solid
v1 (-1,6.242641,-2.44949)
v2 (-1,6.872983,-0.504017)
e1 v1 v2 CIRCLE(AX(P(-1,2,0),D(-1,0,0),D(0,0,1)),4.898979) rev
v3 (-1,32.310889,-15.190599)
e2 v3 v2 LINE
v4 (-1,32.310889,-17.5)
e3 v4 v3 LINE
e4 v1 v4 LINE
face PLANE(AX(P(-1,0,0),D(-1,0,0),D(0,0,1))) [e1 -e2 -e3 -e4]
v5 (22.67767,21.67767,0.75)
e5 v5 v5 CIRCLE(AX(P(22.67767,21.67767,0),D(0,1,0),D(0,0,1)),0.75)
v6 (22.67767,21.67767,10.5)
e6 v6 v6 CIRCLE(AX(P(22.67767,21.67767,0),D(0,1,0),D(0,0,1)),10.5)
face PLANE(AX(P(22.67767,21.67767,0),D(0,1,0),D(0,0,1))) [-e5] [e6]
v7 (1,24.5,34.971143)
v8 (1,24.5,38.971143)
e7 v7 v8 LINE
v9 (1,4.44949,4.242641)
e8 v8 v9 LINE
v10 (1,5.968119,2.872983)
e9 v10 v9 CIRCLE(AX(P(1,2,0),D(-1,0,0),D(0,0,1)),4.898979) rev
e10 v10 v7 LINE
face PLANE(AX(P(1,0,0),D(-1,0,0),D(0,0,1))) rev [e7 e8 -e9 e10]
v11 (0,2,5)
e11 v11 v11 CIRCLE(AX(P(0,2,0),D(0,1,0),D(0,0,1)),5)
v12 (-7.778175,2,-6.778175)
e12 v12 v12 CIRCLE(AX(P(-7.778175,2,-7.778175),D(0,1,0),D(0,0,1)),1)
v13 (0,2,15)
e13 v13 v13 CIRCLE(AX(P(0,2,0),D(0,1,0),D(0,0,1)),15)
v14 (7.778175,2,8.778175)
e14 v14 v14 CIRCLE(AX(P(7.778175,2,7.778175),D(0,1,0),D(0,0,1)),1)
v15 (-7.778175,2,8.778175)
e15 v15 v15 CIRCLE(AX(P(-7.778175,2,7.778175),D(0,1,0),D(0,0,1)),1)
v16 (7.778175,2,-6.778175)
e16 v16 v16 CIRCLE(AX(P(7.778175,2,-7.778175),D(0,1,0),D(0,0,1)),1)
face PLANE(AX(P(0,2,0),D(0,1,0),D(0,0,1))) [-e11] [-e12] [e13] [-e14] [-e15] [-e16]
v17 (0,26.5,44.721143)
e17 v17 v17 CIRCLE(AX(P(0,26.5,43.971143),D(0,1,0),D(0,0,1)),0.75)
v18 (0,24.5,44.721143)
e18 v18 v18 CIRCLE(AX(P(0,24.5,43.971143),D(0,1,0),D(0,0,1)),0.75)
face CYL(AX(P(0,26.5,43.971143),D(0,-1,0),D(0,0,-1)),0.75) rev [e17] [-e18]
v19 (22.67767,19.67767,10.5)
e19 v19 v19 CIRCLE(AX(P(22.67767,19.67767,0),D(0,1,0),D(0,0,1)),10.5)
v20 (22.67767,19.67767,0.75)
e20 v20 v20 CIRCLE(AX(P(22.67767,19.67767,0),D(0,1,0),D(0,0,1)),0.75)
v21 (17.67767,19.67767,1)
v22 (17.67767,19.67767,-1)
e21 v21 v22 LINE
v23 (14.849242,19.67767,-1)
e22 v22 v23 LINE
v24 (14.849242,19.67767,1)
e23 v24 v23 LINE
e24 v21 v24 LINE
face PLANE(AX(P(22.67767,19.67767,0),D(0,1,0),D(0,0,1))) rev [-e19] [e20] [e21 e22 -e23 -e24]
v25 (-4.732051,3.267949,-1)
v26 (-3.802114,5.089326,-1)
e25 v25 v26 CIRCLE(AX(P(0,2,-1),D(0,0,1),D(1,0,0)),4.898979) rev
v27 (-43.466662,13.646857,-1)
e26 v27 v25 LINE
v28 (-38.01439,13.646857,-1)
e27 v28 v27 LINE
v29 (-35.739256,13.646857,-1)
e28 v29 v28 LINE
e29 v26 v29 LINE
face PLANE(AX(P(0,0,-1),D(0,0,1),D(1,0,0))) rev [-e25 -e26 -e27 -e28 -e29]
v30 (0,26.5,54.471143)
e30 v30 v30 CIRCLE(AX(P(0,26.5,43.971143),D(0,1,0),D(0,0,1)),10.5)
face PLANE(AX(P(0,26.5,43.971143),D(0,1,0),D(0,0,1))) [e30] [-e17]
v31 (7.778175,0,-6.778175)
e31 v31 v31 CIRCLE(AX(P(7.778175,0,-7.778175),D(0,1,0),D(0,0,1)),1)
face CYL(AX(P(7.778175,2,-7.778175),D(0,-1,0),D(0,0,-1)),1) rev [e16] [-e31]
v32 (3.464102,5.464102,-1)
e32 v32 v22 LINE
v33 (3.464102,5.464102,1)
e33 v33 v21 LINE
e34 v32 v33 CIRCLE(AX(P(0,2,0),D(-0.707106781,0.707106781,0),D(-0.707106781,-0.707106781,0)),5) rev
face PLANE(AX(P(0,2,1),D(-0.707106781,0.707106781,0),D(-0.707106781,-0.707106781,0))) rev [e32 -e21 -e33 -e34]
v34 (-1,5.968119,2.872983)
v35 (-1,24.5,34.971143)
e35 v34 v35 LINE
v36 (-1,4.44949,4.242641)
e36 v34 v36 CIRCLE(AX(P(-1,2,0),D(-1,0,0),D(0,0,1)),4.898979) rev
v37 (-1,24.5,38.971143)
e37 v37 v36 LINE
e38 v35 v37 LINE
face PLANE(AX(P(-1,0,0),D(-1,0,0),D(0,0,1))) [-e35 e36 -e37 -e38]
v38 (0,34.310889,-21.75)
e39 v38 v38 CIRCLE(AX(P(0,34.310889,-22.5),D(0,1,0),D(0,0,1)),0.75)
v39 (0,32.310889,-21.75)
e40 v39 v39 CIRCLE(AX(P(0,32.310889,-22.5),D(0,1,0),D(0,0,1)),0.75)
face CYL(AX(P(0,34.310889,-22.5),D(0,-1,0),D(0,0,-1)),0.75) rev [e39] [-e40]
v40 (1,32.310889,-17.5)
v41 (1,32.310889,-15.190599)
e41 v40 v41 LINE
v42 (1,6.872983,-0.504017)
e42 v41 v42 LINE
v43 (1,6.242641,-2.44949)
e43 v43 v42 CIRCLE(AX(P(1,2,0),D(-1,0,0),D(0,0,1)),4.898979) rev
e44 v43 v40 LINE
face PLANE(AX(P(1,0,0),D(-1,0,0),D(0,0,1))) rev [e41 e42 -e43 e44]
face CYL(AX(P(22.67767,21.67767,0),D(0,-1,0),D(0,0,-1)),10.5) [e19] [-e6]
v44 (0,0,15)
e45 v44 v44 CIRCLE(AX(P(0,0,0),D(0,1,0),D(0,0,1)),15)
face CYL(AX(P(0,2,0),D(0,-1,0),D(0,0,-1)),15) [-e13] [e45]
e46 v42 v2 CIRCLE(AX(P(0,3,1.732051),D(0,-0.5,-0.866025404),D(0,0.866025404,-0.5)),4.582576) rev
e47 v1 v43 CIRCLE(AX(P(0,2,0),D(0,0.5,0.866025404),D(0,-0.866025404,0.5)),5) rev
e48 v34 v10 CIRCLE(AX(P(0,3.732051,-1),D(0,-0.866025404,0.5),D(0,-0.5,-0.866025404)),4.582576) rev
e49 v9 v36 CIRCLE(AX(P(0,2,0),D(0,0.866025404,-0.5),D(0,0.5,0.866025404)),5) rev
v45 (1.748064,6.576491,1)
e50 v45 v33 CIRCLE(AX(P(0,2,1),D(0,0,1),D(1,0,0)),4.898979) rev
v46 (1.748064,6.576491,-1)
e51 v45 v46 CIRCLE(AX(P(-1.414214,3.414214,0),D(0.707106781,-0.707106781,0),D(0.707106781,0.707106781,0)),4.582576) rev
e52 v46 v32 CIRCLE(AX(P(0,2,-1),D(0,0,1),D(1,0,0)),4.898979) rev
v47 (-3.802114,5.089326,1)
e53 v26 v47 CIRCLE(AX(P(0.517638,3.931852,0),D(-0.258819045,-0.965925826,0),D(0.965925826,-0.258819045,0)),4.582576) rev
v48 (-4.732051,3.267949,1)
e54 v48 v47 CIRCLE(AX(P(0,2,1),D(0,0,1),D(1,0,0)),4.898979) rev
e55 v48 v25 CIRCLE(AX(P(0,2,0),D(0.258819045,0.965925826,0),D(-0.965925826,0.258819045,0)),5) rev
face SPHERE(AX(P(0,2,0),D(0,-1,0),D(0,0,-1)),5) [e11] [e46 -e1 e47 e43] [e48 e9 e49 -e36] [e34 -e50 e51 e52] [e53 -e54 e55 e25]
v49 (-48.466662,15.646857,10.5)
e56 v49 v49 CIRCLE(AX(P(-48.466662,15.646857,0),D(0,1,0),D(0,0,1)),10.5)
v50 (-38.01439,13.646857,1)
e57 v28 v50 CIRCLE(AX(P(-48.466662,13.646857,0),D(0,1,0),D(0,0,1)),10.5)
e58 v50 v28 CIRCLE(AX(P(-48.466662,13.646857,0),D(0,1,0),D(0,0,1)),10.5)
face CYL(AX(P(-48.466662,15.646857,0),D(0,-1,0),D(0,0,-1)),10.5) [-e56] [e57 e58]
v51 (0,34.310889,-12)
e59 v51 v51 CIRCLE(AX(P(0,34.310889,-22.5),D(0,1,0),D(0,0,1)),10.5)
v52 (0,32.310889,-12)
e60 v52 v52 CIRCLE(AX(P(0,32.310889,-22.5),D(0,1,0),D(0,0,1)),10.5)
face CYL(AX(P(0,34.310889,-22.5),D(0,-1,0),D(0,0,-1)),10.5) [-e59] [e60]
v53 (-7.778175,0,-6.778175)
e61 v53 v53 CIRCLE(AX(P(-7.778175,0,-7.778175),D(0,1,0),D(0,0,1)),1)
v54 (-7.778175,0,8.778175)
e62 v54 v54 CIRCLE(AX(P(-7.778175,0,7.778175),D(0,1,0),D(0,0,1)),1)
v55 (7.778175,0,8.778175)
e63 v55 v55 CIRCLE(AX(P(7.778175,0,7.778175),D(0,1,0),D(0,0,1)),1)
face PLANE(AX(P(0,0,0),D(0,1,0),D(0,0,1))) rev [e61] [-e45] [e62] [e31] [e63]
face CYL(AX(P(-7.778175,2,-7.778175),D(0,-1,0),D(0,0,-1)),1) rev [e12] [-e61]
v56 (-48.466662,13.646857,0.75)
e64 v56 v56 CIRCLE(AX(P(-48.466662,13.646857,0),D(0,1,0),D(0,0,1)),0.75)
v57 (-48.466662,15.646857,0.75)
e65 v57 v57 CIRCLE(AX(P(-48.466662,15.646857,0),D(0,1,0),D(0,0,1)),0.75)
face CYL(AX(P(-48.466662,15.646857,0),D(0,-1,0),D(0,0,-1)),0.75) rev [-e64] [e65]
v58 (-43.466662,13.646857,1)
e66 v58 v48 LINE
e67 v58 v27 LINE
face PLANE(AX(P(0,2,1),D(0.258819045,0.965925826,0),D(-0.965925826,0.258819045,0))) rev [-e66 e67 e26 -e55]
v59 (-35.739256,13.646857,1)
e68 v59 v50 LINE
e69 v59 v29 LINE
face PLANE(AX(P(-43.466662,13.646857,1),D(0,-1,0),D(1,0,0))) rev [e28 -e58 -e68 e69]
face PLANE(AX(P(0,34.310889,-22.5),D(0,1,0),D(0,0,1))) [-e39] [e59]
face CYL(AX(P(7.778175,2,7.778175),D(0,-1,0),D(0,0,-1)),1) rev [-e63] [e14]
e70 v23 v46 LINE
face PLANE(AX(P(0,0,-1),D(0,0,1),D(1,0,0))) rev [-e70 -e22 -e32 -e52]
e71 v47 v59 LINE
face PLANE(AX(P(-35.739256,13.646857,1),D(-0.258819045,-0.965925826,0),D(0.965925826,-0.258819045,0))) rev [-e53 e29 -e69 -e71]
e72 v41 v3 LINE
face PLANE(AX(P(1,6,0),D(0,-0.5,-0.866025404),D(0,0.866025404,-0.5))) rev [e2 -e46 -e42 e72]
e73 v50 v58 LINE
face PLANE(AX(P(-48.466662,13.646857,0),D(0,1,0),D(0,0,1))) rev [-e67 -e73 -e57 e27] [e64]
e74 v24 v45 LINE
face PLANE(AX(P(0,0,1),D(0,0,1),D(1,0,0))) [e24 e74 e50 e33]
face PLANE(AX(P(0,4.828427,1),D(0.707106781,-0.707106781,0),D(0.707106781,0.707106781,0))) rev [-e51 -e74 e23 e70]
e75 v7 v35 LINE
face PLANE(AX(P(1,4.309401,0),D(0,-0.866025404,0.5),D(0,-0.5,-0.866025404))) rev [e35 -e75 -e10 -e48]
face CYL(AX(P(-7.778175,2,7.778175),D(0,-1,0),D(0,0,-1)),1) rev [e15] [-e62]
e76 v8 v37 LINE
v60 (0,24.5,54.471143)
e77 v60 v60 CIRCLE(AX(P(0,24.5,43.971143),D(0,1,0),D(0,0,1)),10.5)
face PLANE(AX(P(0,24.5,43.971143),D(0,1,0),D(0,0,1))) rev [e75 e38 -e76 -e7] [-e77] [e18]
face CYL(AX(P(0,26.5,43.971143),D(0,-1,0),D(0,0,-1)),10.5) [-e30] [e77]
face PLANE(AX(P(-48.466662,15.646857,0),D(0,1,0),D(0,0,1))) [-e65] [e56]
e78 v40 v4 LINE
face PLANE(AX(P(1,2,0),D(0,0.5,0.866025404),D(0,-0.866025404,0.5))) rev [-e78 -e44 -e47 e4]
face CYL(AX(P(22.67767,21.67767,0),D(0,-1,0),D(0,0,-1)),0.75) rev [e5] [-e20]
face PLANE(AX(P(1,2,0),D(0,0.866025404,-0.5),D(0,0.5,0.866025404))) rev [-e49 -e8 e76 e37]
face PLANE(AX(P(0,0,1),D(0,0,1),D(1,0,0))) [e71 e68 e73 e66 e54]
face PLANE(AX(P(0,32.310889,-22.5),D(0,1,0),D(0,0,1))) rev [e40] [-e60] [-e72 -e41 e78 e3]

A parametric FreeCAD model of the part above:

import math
import FreeCAD as App
import Part
import Sketcher
Q = App.Units.Quantity


def add_polygon(sketch, points):
    """Adds a closed chain of lines whose ends are joined by coincident constraints."""
    first, n = sketch.GeometryCount, len(points)
    for a, b in zip(points, points[1:] + points[:1]):
        sketch.addGeometry(Part.LineSegment(App.Vector(*a, 0), App.Vector(*b, 0)), False)
    for i in range(n):
        sketch.addConstraint(Sketcher.Constraint("Coincident", first + i, 2, first + (i + 1) % n, 1))

doc = App.newDocument("Part")
body = doc.addObject("PartDesign::Body", "Body")

# Sketch on XZ plane
sketch1 = body.newObject("Sketcher::SketchObject", "Sketch")
sketch1.AttachmentSupport = (doc.getObject("XZ_Plane"), [""])
sketch1.MapMode = "FlatFace"
sketch1.addGeometry([
    Part.Circle(App.Vector(0, 0, 0), App.Vector(0, 0, 1), 15),  # 0
    Part.Circle(App.Vector(-7.778175, -7.778175, 0), App.Vector(0, 0, 1), 1),  # 1
    Part.Circle(App.Vector(-7.778175, 7.778175, 0), App.Vector(0, 0, 1), 1),  # 2
    Part.Circle(App.Vector(7.778175, -7.778175, 0), App.Vector(0, 0, 1), 1),  # 3
    Part.Circle(App.Vector(7.778175, 7.778175, 0), App.Vector(0, 0, 1), 1),  # 4
], False)
sketch1.addConstraint([
    Sketcher.Constraint("Coincident", 0, 3, -1, 1),
    Sketcher.Constraint("Equal", 1, 2),
    Sketcher.Constraint("Equal", 2, 3),
    Sketcher.Constraint("Equal", 3, 4),
    Sketcher.Constraint("Symmetric", 2, 3, 3, 3, -1, 1),
    Sketcher.Constraint("Symmetric", 1, 3, 4, 3, -1, 1),
    Sketcher.Constraint("Symmetric", 1, 3, 3, 3, -2),
    Sketcher.Constraint("Diameter", 0, Q("30 mm")),
    Sketcher.Constraint("Diameter", 1, Q("2 mm")),
    Sketcher.Constraint("DistanceY", 1, 3, 2, 3, Q("15.556349 mm")),
    Sketcher.Constraint("DistanceX", 1, 3, 3, 3, Q("15.556349 mm")),
])
pad1 = body.newObject("PartDesign::Pad", "Pad")
pad1.Profile = sketch1
pad1.Length = 2
pad1.Reversed = True

# Sketch on YZ plane
sketch2 = body.newObject("Sketcher::SketchObject", "Sketch001")
sketch2.AttachmentSupport = (doc.getObject("YZ_Plane"), [""])
sketch2.MapMode = "FlatFace"
sketch2.addGeometry([
    Part.LineSegment(App.Vector(7, 0, 0), App.Vector(2, 0, 0)),
    Part.LineSegment(App.Vector(2, 0, 0), App.Vector(2, -5, 0)),
    Part.ArcOfCircle(Part.Circle(App.Vector(2, 0, 0), App.Vector(0, 0, 1), 5), math.radians(-90), math.radians(0)),
], False)
sketch2.addConstraint([
    Sketcher.Constraint("Coincident", 0, 2, 1, 1),
    Sketcher.Constraint("Coincident", 1, 2, 2, 1),
    Sketcher.Constraint("Coincident", 2, 2, 0, 1),
    Sketcher.Constraint("Horizontal", 0),
    Sketcher.Constraint("Vertical", 1),
    Sketcher.Constraint("Coincident", 0, 2, 2, 3),
    Sketcher.Constraint("PointOnObject", 2, 3, -1),
    Sketcher.Constraint("Radius", 2, Q("5 mm")),
    Sketcher.Constraint("DistanceX", -1, 1, 2, 3, Q("2 mm")),
])
revolution = body.newObject("PartDesign::Revolution", "Revolution")
revolution.Profile = sketch2
revolution.ReferenceAxis = (sketch2, ["H_Axis"])
revolution.Angle = 360

# Sketch on XY plane
sketch3 = body.newObject("Sketcher::SketchObject", "Sketch002")
sketch3.AttachmentSupport = (doc.getObject("XY_Plane"), [""])
sketch3.MapMode = "FlatFace"
add_polygon(sketch3, [(0, 2), (17.67767, 19.67767), (14.849242, 19.67767), (0, 4.828427), (0, 4.070552), (-35.739256, 13.646857), (-43.466662, 13.646857)])  # lines 0-6
sketch3.addConstraint([
    Sketcher.Constraint("Horizontal", 1),
    Sketcher.Constraint("Vertical", 3),
    Sketcher.Constraint("Horizontal", 5),
    Sketcher.Constraint("PointOnObject", 2, 2, -2),
    Sketcher.Constraint("PointOnObject", 6, 2, -2),
    Sketcher.Constraint("Parallel", 0, 2),
    Sketcher.Constraint("Parallel", 4, 6),
    Sketcher.Constraint("Angle", 0, Q("45 deg")),
    Sketcher.Constraint("Angle", 4, Q("165 deg")),
    Sketcher.Constraint("Distance", 0, Q("25 mm")),
    Sketcher.Constraint("Distance", 2, Q("21 mm")),
    Sketcher.Constraint("Distance", 4, Q("37 mm")),
    Sketcher.Constraint("Distance", 6, Q("45 mm")),
    Sketcher.Constraint("DistanceY", -1, 1, 6, 2, Q("2 mm")),
])
pad2 = body.newObject("PartDesign::Pad", "Pad001")
pad2.Profile = sketch3
pad2.Length = 2
pad2.Midplane = True

# Sketch on XZ plane
sketch4 = body.newObject("Sketcher::SketchObject", "Sketch003")
sketch4.AttachmentSupport = (doc.getObject("XZ_Plane"), [""])
sketch4.MapMode = "FlatFace"
sketch4.AttachmentOffset = App.Placement(App.Vector(0, 0, -19.67767), App.Rotation())
sketch4.addGeometry([
    Part.Circle(App.Vector(22.67767, 0, 0), App.Vector(0, 0, 1), 10.5),
    Part.Circle(App.Vector(22.67767, 0, 0), App.Vector(0, 0, 1), 0.75),
], False)
sketch4.addConstraint([
    Sketcher.Constraint("Coincident", 1, 3, 0, 3),
    Sketcher.Constraint("PointOnObject", 0, 3, -1),
    Sketcher.Constraint("Diameter", 0, Q("21 mm")),
    Sketcher.Constraint("Diameter", 1, Q("1.5 mm")),
    Sketcher.Constraint("DistanceX", -1, 1, 0, 3, Q("22.67767 mm")),
])
pad3 = body.newObject("PartDesign::Pad", "Pad002")
pad3.Profile = sketch4
pad3.Length = 2
pad3.Reversed = True

# Sketch on XZ plane
sketch5 = body.newObject("Sketcher::SketchObject", "Sketch004")
sketch5.AttachmentSupport = (doc.getObject("XZ_Plane"), [""])
sketch5.MapMode = "FlatFace"
sketch5.AttachmentOffset = App.Placement(App.Vector(0, 0, -13.646857), App.Rotation())
sketch5.addGeometry([
    Part.Circle(App.Vector(-48.466662, 0, 0), App.Vector(0, 0, 1), 10.5),
    Part.Circle(App.Vector(-48.466662, 0, 0), App.Vector(0, 0, 1), 0.75),
], False)
sketch5.addConstraint([
    Sketcher.Constraint("Coincident", 1, 3, 0, 3),
    Sketcher.Constraint("PointOnObject", 0, 3, -1),
    Sketcher.Constraint("Diameter", 0, Q("21 mm")),
    Sketcher.Constraint("Diameter", 1, Q("1.5 mm")),
    Sketcher.Constraint("DistanceX", 0, 3, -1, 1, Q("48.466662 mm")),
])
pad4 = body.newObject("PartDesign::Pad", "Pad003")
pad4.Profile = sketch5
pad4.Length = 2
pad4.Reversed = True

# Sketch on YZ plane
sketch6 = body.newObject("Sketcher::SketchObject", "Sketch005")
sketch6.AttachmentSupport = (doc.getObject("YZ_Plane"), [""])
sketch6.MapMode = "FlatFace"
add_polygon(sketch6, [(2, 0), (32.310889, -17.5), (32.310889, -15.190599), (6, 0), (4.309401, 0), (24.5, 34.971143), (24.5, 38.971143)])  # lines 0-6
sketch6.addConstraint([
    Sketcher.Constraint("Vertical", 1),
    Sketcher.Constraint("Horizontal", 3),
    Sketcher.Constraint("Vertical", 5),
    Sketcher.Constraint("PointOnObject", 2, 2, -1),
    Sketcher.Constraint("PointOnObject", 6, 2, -1),
    Sketcher.Constraint("Parallel", 0, 2),
    Sketcher.Constraint("Perpendicular", 2, 4),
    Sketcher.Constraint("Parallel", 4, 6),
    Sketcher.Constraint("DistanceY", 5, 1, 5, 2, Q("4 mm")),
    Sketcher.Constraint("Angle", 0, Q("-30 deg")),
    Sketcher.Constraint("Distance", 0, Q("35 mm")),
    Sketcher.Constraint("Distance", 6, Q("45 mm")),
    Sketcher.Constraint("DistanceX", -1, 1, 2, 2, Q("6 mm")),
    Sketcher.Constraint("DistanceX", -1, 1, 6, 2, Q("2 mm")),
])
pad5 = body.newObject("PartDesign::Pad", "Pad004")
pad5.Profile = sketch6
pad5.Length = 2
pad5.Midplane = True

# Sketch on XZ plane
sketch7 = body.newObject("Sketcher::SketchObject", "Sketch006")
sketch7.AttachmentSupport = (doc.getObject("XZ_Plane"), [""])
sketch7.MapMode = "FlatFace"
sketch7.AttachmentOffset = App.Placement(App.Vector(0, 0, -32.310889), App.Rotation())
sketch7.addGeometry([
    Part.Circle(App.Vector(0, -22.5, 0), App.Vector(0, 0, 1), 10.5),
    Part.Circle(App.Vector(0, -22.5, 0), App.Vector(0, 0, 1), 0.75),
], False)
sketch7.addConstraint([
    Sketcher.Constraint("Coincident", 1, 3, 0, 3),
    Sketcher.Constraint("PointOnObject", 0, 3, -2),
    Sketcher.Constraint("Diameter", 0, Q("21 mm")),
    Sketcher.Constraint("Diameter", 1, Q("1.5 mm")),
    Sketcher.Constraint("DistanceY", 0, 3, -1, 1, Q("22.5 mm")),
])
pad6 = body.newObject("PartDesign::Pad", "Pad005")
pad6.Profile = sketch7
pad6.Length = 2
pad6.Reversed = True

# Sketch on XZ plane
sketch8 = body.newObject("Sketcher::SketchObject", "Sketch007")
sketch8.AttachmentSupport = (doc.getObject("XZ_Plane"), [""])
sketch8.MapMode = "FlatFace"
sketch8.AttachmentOffset = App.Placement(App.Vector(0, 0, -24.5), App.Rotation())
sketch8.addGeometry([
    Part.Circle(App.Vector(0, 43.971143, 0), App.Vector(0, 0, 1), 10.5),
    Part.Circle(App.Vector(0, 43.971143, 0), App.Vector(0, 0, 1), 0.75),
], False)
sketch8.addConstraint([
    Sketcher.Constraint("Coincident", 1, 3, 0, 3),
    Sketcher.Constraint("PointOnObject", 0, 3, -2),
    Sketcher.Constraint("Diameter", 0, Q("21 mm")),
    Sketcher.Constraint("Diameter", 1, Q("1.5 mm")),
    Sketcher.Constraint("DistanceY", -1, 1, 0, 3, Q("43.971143 mm")),
])
pad7 = body.newObject("PartDesign::Pad", "Pad006")
pad7.Profile = sketch8
pad7.Length = 2
pad7.Reversed = True

doc.recompute()
